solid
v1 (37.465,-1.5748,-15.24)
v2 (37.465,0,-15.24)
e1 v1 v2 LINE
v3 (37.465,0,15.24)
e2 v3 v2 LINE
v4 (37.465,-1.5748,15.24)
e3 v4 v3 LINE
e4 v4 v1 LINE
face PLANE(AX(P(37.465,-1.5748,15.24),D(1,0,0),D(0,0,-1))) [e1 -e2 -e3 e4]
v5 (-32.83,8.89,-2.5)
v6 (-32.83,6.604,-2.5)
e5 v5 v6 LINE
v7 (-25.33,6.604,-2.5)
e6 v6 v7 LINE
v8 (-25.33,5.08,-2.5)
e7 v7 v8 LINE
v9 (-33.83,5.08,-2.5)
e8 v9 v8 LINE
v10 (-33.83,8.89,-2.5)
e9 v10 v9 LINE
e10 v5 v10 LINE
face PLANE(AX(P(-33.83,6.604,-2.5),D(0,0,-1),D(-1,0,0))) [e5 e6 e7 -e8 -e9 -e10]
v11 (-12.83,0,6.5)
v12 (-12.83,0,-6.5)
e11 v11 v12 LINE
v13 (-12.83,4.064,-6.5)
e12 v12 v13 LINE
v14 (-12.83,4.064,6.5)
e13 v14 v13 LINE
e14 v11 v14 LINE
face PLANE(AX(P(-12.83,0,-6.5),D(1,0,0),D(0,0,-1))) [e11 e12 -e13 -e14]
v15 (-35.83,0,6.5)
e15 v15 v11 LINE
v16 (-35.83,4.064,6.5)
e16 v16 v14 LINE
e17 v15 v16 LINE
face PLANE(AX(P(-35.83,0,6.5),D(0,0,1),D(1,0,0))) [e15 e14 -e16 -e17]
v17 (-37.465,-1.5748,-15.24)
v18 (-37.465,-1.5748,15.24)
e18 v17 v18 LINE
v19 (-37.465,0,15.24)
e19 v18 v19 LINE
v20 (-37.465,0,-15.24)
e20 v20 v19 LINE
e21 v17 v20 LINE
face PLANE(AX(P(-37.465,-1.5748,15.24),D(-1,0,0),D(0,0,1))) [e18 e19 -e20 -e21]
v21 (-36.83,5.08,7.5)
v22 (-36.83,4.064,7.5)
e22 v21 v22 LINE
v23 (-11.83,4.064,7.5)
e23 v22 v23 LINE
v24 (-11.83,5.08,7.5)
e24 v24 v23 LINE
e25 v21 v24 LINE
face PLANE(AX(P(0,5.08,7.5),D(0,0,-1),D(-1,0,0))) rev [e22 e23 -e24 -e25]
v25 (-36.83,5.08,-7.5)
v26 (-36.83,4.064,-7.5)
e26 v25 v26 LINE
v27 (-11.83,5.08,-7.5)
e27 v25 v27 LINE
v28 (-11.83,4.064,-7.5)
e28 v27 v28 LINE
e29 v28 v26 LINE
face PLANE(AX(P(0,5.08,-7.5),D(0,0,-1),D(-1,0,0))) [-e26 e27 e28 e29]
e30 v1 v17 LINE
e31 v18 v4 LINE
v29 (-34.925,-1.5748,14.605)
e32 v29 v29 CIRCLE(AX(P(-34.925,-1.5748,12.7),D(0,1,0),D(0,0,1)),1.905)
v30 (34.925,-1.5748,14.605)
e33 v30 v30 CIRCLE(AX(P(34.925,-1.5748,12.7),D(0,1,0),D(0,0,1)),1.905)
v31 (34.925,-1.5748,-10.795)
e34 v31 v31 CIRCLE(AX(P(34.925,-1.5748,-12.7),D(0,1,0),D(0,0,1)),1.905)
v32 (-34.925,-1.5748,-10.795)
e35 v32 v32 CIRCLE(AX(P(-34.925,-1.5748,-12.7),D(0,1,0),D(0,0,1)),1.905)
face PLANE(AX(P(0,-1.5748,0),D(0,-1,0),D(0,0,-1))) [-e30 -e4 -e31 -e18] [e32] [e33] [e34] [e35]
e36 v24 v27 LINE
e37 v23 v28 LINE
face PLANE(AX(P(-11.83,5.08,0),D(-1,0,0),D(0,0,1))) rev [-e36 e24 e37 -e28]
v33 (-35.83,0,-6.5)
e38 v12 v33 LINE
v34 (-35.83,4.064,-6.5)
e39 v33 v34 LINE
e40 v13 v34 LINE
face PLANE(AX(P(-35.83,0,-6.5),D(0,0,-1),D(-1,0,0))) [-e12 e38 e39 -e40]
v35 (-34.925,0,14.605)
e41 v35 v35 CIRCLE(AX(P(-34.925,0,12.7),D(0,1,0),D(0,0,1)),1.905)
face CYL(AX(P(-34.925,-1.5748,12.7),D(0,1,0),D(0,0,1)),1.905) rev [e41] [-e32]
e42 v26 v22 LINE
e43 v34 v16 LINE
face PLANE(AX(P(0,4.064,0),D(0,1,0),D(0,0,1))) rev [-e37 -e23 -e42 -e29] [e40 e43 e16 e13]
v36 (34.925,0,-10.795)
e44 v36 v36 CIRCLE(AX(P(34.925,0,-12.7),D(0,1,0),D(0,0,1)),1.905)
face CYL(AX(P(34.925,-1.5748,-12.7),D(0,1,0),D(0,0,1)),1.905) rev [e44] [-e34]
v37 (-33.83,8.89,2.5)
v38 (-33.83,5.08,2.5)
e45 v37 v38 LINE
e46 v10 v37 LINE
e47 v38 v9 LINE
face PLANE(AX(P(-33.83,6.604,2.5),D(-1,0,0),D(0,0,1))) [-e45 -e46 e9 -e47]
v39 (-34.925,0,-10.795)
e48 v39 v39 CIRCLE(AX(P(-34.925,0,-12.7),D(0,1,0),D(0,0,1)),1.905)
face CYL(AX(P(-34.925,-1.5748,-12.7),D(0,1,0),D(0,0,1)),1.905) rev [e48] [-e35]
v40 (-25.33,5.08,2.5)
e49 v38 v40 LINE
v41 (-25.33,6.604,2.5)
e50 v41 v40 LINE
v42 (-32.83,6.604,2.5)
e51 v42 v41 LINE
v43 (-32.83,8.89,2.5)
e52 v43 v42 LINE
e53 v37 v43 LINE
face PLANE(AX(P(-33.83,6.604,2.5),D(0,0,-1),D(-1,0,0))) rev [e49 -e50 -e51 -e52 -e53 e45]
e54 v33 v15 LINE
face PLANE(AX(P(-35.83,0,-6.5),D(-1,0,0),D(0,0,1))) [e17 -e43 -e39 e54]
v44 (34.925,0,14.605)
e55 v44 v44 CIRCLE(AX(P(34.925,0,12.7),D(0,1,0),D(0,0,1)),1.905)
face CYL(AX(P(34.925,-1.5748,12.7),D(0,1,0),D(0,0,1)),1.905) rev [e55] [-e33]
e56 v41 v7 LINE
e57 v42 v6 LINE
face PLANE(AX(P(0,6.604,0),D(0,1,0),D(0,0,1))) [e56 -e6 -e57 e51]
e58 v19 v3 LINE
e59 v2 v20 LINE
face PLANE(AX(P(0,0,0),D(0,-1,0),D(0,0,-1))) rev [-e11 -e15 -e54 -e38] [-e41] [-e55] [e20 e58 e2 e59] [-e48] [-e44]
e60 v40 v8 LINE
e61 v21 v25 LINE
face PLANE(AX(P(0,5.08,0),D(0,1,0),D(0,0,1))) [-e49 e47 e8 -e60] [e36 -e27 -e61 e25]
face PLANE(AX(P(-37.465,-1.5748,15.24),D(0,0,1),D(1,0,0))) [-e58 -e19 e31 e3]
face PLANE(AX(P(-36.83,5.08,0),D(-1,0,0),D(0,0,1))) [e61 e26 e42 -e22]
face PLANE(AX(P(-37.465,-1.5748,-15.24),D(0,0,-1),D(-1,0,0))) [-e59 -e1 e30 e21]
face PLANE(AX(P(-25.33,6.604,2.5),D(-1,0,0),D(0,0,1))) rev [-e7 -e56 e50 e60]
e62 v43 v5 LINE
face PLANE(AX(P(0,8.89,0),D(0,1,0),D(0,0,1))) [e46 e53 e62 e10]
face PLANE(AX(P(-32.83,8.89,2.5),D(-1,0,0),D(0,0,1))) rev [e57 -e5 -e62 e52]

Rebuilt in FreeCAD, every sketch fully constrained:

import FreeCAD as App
import Part
import Sketcher
from FreeCAD import Vector
Q = App.Units.Quantity

doc = App.newDocument("Part")
body = doc.addObject("PartDesign::Body", "Body")

# Sketch on XZ plane
sketch1 = body.newObject("Sketcher::SketchObject", "Sketch")
sketch1.AttachmentSupport = (doc.getObject("XZ_Plane"), [""])
sketch1.MapMode = "FlatFace"
sketch1.addGeometry(Part.LineSegment(Vector(-37.5, -15.2, 0), Vector(-37.5, 15.2, 0)), False)
sketch1.addGeometry(Part.LineSegment(Vector(-37.5, 15.2, 0), Vector(37.5, 15.2, 0)), False)
sketch1.addGeometry(Part.LineSegment(Vector(37.5, 15.2, 0), Vector(37.5, -15.2, 0)), False)
sketch1.addGeometry(Part.LineSegment(Vector(37.5, -15.2, 0), Vector(-37.5, -15.2, 0)), False)
sketch1.addGeometry(Part.Circle(Vector(-34.9, 12.7, 0), Vector(0, 0, 1), 1.9), False)
sketch1.addGeometry(Part.Circle(Vector(34.9, 12.7, 0), Vector(0, 0, 1), 1.9), False)
sketch1.addGeometry(Part.Circle(Vector(-34.9, -12.7, 0), Vector(0, 0, 1), 1.9), False)
sketch1.addGeometry(Part.Circle(Vector(34.9, -12.7, 0), Vector(0, 0, 1), 1.9), False)
sketch1.addConstraint(Sketcher.Constraint("Coincident", 0, 2, 1, 1))
sketch1.addConstraint(Sketcher.Constraint("Coincident", 1, 2, 2, 1))
sketch1.addConstraint(Sketcher.Constraint("Coincident", 2, 2, 3, 1))
sketch1.addConstraint(Sketcher.Constraint("Coincident", 3, 2, 0, 1))
sketch1.addConstraint(Sketcher.Constraint("Vertical", 0))
sketch1.addConstraint(Sketcher.Constraint("Horizontal", 1))
sketch1.addConstraint(Sketcher.Constraint("Vertical", 2))
sketch1.addConstraint(Sketcher.Constraint("Horizontal", 3))
sketch1.addConstraint(Sketcher.Constraint("Equal", 4, 5))
sketch1.addConstraint(Sketcher.Constraint("Equal", 5, 6))
sketch1.addConstraint(Sketcher.Constraint("Equal", 6, 7))
sketch1.addConstraint(Sketcher.Constraint("Symmetric", 5, 3, 6, 3, -1, 1))
sketch1.addConstraint(Sketcher.Constraint("Symmetric", 4, 3, 7, 3, -1, 1))
sketch1.addConstraint(Sketcher.Constraint("Symmetric", 0, 2, 2, 2, -1, 1))
sketch1.addConstraint(Sketcher.Constraint("Symmetric", 4, 3, 5, 3, -2))
sketch1.addConstraint(Sketcher.Constraint("Diameter", 4, Q("0.15 in")))
sketch1.addConstraint(Sketcher.Constraint("DistanceY", 0, 1, 0, 2, Q("1.2 in")))
sketch1.addConstraint(Sketcher.Constraint("DistanceY", 6, 3, 4, 3, Q("1 in")))
sketch1.addConstraint(Sketcher.Constraint("DistanceX", 1, 1, 1, 2, Q("2.95 in")))
sketch1.addConstraint(Sketcher.Constraint("DistanceX", 0, 2, 4, 3, Q("0.1 in")))
pad1 = body.newObject("PartDesign::Pad", "Pad")
pad1.Profile = sketch1
pad1.Length = Q("0.062 in")

# Sketch on XZ plane
sketch2 = body.newObject("Sketcher::SketchObject", "Sketch001")
sketch2.AttachmentSupport = (doc.getObject("XZ_Plane"), [""])
sketch2.MapMode = "FlatFace"
sketch2.addGeometry(Part.LineSegment(Vector(-37, -8, 0), Vector(-37, 8, 0)), False)
sketch2.addGeometry(Part.LineSegment(Vector(-37, 8, 0), Vector(-12, 8, 0)), False)
sketch2.addGeometry(Part.LineSegment(Vector(-12, 8, 0), Vector(-12, -8, 0)), False)
sketch2.addGeometry(Part.LineSegment(Vector(-12, -8, 0), Vector(-37, -8, 0)), False)
sketch2.addConstraint(Sketcher.Constraint("Coincident", 0, 2, 1, 1))
sketch2.addConstraint(Sketcher.Constraint("Coincident", 1, 2, 2, 1))
sketch2.addConstraint(Sketcher.Constraint("Coincident", 2, 2, 3, 1))
sketch2.addConstraint(Sketcher.Constraint("Coincident", 3, 2, 0, 1))
sketch2.addConstraint(Sketcher.Constraint("Vertical", 0))
sketch2.addConstraint(Sketcher.Constraint("Horizontal", 1))
sketch2.addConstraint(Sketcher.Constraint("Vertical", 2))
sketch2.addConstraint(Sketcher.Constraint("Horizontal", 3))
sketch2.addConstraint(Sketcher.Constraint("DistanceX", 0, 2, -1, 1, Q("1.45 in")))
sketch2.addConstraint(Sketcher.Constraint("DistanceX", 1, 1, 1, 2, Q("25 mm")))
sketch2.addConstraint(Sketcher.Constraint("DistanceY", 0, 1, 0, 2, Q("15 mm")))
sketch2.addConstraint(Sketcher.Constraint("DistanceY", -1, 1, 0, 2, Q("7.5 mm")))
pad2 = body.newObject("PartDesign::Pad", "Pad001")
pad2.Profile = sketch2
pad2.Length = Q("0.2 in")
pad2.Reversed = True

# Sketch on XZ plane
sketch3 = body.newObject("Sketcher::SketchObject", "Sketch002")
sketch3.AttachmentSupport = (doc.getObject("XZ_Plane"), [""])
sketch3.MapMode = "FlatFace"
sketch3.AttachmentOffset = App.Placement(Vector(0, 0, -0.16 * 25.4), App.Rotation())
sketch3.addGeometry(Part.LineSegment(Vector(-37, -8, 0), Vector(-37, 8, 0)), False)
sketch3.addGeometry(Part.LineSegment(Vector(-37, 8, 0), Vector(-12, 8, 0)), False)
sketch3.addGeometry(Part.LineSegment(Vector(-12, 8, 0), Vector(-12, -8, 0)), False)
sketch3.addGeometry(Part.LineSegment(Vector(-12, -8, 0), Vector(-37, -8, 0)), False)
sketch3.addGeometry(Part.LineSegment(Vector(-13, 6, 0), Vector(-36, 6, 0)), False)
sketch3.addGeometry(Part.LineSegment(Vector(-36, 6, 0), Vector(-36, -6, 0)), False)
sketch3.addGeometry(Part.LineSegment(Vector(-36, -6, 0), Vector(-13, -6, 0)), False)
sketch3.addGeometry(Part.LineSegment(Vector(-13, -6, 0), Vector(-13, 6, 0)), False)
sketch3.addConstraint(Sketcher.Constraint("Coincident", 0, 2, 1, 1))
sketch3.addConstraint(Sketcher.Constraint("Coincident", 1, 2, 2, 1))
sketch3.addConstraint(Sketcher.Constraint("Coincident", 2, 2, 3, 1))
sketch3.addConstraint(Sketcher.Constraint("Coincident", 3, 2, 0, 1))
sketch3.addConstraint(Sketcher.Constraint("Coincident", 4, 2, 5, 1))
sketch3.addConstraint(Sketcher.Constraint("Coincident", 5, 2, 6, 1))
sketch3.addConstraint(Sketcher.Constraint("Coincident", 6, 2, 7, 1))
sketch3.addConstraint(Sketcher.Constraint("Coincident", 7, 2, 4, 1))
sketch3.addConstraint(Sketcher.Constraint("Vertical", 0))
sketch3.addConstraint(Sketcher.Constraint("Horizontal", 1))
sketch3.addConstraint(Sketcher.Constraint("Vertical", 2))
sketch3.addConstraint(Sketcher.Constraint("Horizontal", 3))
sketch3.addConstraint(Sketcher.Constraint("Horizontal", 4))
sketch3.addConstraint(Sketcher.Constraint("Vertical", 5))
sketch3.addConstraint(Sketcher.Constraint("Horizontal", 6))
sketch3.addConstraint(Sketcher.Constraint("Vertical", 7))
sketch3.addConstraint(Sketcher.Constraint("DistanceX", 0, 2, -1, 1, Q("1.45 in")))
sketch3.addConstraint(Sketcher.Constraint("DistanceX", 1, 1, 1, 2, Q("25 mm")))
sketch3.addConstraint(Sketcher.Constraint("DistanceX", 4, 2, 4, 1, Q("23 mm")))
sketch3.addConstraint(Sketcher.Constraint("DistanceY", 0, 1, 0, 2, Q("15 mm")))
sketch3.addConstraint(Sketcher.Constraint("DistanceY", 5, 2, 5, 1, Q("13 mm")))
sketch3.addConstraint(Sketcher.Constraint("DistanceY", -1, 1, 0, 2, Q("7.5 mm")))
sketch3.addConstraint(Sketcher.Constraint("DistanceX", 4, 2, -1, 1, Q("35.83 mm")))
sketch3.addConstraint(Sketcher.Constraint("DistanceY", -1, 1, 4, 2, Q("6.5 mm")))
pocket1 = body.newObject("PartDesign::Pocket", "Pocket")
pocket1.Profile = sketch3
pocket1.Length = Q("0.16 in")
pocket1.Reversed = True

# Sketch on XZ plane
sketch4 = body.newObject("Sketcher::SketchObject", "Sketch003")
sketch4.AttachmentSupport = (doc.getObject("XZ_Plane"), [""])
sketch4.MapMode = "FlatFace"
sketch4.AttachmentOffset = App.Placement(Vector(0, 0, -0.2 * 25.4), App.Rotation())
sketch4.addGeometry(Part.LineSegment(Vector(-34, -2, 0), Vector(-34, 2, 0)), False)
sketch4.addGeometry(Part.LineSegment(Vector(-34, 2, 0), Vector(-25, 2, 0)), False)
sketch4.addGeometry(Part.LineSegment(Vector(-25, 2, 0), Vector(-25, -2, 0)), False)
sketch4.addGeometry(Part.LineSegment(Vector(-25, -2, 0), Vector(-34, -2, 0)), False)
sketch4.addConstraint(Sketcher.Constraint("Coincident", 0, 2, 1, 1))
sketch4.addConstraint(Sketcher.Constraint("Coincident", 1, 2, 2, 1))
sketch4.addConstraint(Sketcher.Constraint("Coincident", 2, 2, 3, 1))
sketch4.addConstraint(Sketcher.Constraint("Coincident", 3, 2, 0, 1))
sketch4.addConstraint(Sketcher.Constraint("Vertical", 0))
sketch4.addConstraint(Sketcher.Constraint("Horizontal", 1))
sketch4.addConstraint(Sketcher.Constraint("Vertical", 2))
sketch4.addConstraint(Sketcher.Constraint("Horizontal", 3))
sketch4.addConstraint(Sketcher.Constraint("DistanceX", 1, 1, 1, 2, Q("8.5 mm")))
sketch4.addConstraint(Sketcher.Constraint("DistanceY", 0, 1, 0, 2, Q("5 mm")))
sketch4.addConstraint(Sketcher.Constraint("DistanceX", 0, 2, -1, 1, Q("33.83 mm")))
sketch4.addConstraint(Sketcher.Constraint("DistanceY", -1, 1, 0, 2, Q("2.5 mm")))
pad3 = body.newObject("PartDesign::Pad", "Pad002")
pad3.Profile = sketch4
pad3.Length = Q("0.06 in")
pad3.Reversed = True

# Sketch on XZ plane
sketch5 = body.newObject("Sketcher::SketchObject", "Sketch004")
sketch5.AttachmentSupport = (doc.getObject("XZ_Plane"), [""])
sketch5.MapMode = "FlatFace"
sketch5.AttachmentOffset = App.Placement(Vector(0, 0, -0.26 * 25.4), App.Rotation())
sketch5.addGeometry(Part.LineSegment(Vector(-33.8, -2.5, 0), Vector(-33.8, 2.5, 0)), False)
sketch5.addGeometry(Part.LineSegment(Vector(-33.8, 2.5, 0), Vector(-32.8, 2.5, 0)), False)
sketch5.addGeometry(Part.LineSegment(Vector(-32.8, 2.5, 0), Vector(-32.8, -2.5, 0)), False)
sketch5.addGeometry(Part.LineSegment(Vector(-32.8, -2.5, 0), Vector(-33.8, -2.5, 0)), False)
sketch5.addConstraint(Sketcher.Constraint("Coincident", 0, 2, 1, 1))
sketch5.addConstraint(Sketcher.Constraint("Coincident", 1, 2, 2, 1))
sketch5.addConstraint(Sketcher.Constraint("Coincident", 2, 2, 3, 1))
sketch5.addConstraint(Sketcher.Constraint("Coincident", 3, 2, 0, 1))
sketch5.addConstraint(Sketcher.Constraint("Vertical", 0))
sketch5.addConstraint(Sketcher.Constraint("Horizontal", 1))
sketch5.addConstraint(Sketcher.Constraint("Vertical", 2))
sketch5.addConstraint(Sketcher.Constraint("Horizontal", 3))
sketch5.addConstraint(Sketcher.Constraint("DistanceX", 1, 1, 1, 2, Q("1 mm")))
sketch5.addConstraint(Sketcher.Constraint("DistanceY", 0, 1, 0, 2, Q("5 mm")))
sketch5.addConstraint(Sketcher.Constraint("DistanceX", 0, 2, -1, 1, Q("33.83 mm")))
sketch5.addConstraint(Sketcher.Constraint("DistanceY", -1, 1, 0, 2, Q("2.5 mm")))
pad4 = body.newObject("PartDesign::Pad", "Pad003")
pad4.Profile = sketch5
pad4.Length = Q("0.09 in")
pad4.Reversed = True

doc.recompute()
